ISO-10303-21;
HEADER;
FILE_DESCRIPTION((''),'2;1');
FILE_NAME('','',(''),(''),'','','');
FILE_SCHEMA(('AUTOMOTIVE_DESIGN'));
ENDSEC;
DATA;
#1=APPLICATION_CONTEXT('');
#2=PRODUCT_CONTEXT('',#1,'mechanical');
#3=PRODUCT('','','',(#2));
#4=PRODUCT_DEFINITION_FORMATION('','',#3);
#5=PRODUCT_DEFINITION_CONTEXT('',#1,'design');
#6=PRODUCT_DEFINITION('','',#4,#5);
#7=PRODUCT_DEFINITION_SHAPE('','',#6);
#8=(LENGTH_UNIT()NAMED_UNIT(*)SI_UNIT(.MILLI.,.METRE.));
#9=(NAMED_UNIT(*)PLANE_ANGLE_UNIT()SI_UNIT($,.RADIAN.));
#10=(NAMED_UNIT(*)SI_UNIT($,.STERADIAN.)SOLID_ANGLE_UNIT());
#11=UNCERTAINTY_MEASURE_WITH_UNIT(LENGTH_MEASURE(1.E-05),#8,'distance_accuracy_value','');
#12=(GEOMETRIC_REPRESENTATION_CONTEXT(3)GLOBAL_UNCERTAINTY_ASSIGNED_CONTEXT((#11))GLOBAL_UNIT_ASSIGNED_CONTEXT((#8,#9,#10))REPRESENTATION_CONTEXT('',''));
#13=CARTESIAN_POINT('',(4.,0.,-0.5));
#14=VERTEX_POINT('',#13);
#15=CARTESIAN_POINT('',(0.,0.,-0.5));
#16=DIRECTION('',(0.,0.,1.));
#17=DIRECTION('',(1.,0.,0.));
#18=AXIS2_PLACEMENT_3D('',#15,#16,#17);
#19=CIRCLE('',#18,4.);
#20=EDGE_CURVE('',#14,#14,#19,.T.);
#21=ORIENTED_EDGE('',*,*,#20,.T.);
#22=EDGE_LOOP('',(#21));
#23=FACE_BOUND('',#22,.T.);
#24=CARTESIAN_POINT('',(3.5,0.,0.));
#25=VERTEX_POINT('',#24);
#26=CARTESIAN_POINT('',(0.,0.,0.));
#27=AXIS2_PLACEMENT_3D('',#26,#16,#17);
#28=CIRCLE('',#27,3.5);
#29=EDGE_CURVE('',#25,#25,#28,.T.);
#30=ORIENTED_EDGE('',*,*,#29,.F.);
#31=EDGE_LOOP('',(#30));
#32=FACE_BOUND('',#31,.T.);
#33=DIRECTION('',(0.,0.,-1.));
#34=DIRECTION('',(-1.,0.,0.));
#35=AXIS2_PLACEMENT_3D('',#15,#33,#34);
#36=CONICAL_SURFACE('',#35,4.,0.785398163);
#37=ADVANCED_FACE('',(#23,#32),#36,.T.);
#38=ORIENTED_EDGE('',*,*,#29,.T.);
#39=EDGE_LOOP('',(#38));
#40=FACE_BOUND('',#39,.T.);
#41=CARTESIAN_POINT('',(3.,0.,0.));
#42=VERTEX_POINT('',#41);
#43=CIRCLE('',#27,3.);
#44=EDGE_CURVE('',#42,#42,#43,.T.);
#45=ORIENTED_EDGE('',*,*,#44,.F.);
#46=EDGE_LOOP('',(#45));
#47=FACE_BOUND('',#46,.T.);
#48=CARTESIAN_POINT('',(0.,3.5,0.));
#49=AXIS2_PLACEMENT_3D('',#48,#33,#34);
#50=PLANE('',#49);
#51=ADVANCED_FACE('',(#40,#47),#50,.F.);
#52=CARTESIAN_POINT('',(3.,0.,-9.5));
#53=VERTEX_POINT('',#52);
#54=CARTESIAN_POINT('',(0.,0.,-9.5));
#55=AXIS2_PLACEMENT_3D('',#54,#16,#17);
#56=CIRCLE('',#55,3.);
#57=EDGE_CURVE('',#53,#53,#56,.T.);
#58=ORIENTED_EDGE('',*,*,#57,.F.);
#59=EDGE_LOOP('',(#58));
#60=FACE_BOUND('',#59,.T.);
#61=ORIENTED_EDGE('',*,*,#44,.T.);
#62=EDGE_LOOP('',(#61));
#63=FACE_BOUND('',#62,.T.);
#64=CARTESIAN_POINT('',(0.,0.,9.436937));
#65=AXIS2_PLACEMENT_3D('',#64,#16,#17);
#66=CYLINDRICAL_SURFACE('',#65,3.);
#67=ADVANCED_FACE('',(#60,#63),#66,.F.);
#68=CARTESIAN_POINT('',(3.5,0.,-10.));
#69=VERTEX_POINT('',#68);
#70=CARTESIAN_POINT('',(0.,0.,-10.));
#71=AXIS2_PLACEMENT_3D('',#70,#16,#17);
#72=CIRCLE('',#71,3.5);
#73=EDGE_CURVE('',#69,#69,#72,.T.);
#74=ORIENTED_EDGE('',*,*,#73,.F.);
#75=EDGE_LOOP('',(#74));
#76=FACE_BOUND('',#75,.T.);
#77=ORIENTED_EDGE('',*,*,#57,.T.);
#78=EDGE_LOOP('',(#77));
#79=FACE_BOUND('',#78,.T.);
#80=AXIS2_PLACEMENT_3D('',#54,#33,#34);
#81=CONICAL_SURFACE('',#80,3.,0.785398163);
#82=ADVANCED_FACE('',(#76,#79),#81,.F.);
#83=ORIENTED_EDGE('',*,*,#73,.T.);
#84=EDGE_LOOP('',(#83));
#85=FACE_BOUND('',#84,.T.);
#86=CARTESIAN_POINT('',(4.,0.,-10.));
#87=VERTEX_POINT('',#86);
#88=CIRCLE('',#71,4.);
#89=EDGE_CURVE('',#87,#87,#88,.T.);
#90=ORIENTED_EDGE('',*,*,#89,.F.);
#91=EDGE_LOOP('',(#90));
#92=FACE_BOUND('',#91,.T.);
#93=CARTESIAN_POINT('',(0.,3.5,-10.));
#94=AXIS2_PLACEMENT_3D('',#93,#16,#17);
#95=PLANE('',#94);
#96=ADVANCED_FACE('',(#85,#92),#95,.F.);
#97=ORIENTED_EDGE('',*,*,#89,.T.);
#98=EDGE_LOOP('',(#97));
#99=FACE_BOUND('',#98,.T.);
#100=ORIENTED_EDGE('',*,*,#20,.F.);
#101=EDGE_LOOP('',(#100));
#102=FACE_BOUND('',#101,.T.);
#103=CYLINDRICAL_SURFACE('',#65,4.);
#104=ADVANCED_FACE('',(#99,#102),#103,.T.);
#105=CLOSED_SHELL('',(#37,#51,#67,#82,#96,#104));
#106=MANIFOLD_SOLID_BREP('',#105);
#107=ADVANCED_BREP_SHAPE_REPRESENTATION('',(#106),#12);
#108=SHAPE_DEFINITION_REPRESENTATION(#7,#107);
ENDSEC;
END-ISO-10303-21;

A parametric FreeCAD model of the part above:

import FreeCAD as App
import Part
import Sketcher
Q = App.Units.Quantity


def add_polygon(sketch, points):
    """Adds a closed chain of lines whose ends are joined by coincident constraints."""
    first, n = sketch.GeometryCount, len(points)
    for a, b in zip(points, points[1:] + points[:1]):
        sketch.addGeometry(Part.LineSegment(App.Vector(*a, 0), App.Vector(*b, 0)), False)
    for i in range(n):
        sketch.addConstraint(Sketcher.Constraint("Coincident", first + i, 2, first + (i + 1) % n, 1))

doc = App.newDocument("Part")
body = doc.addObject("PartDesign::Body", "Body")

# Sketch on YZ plane
sketch1 = doc.addObject("Sketcher::SketchObject", "Sketch")
body.addObject(sketch1)
sketch1.AttachmentSupport = (doc.YZ_Plane, [""])
sketch1.MapMode = "FlatFace"
add_polygon(sketch1, [(4, -10), (4, -0.5), (3.5, 0), (3, 0), (3, -9.5), (3.5, -10)])  # lines 0-5
sketch1.addConstraint(Sketcher.Constraint("Vertical", 0))
sketch1.addConstraint(Sketcher.Constraint("Horizontal", 2))
sketch1.addConstraint(Sketcher.Constraint("Vertical", 3))
sketch1.addConstraint(Sketcher.Constraint("Horizontal", 5))
sketch1.addConstraint(Sketcher.Constraint("PointOnObject", 1, 2, -1))
sketch1.addConstraint(Sketcher.Constraint("Parallel", 1, 4))
sketch1.addConstraint(Sketcher.Constraint("Vertical", 1, 2, 4, 2))
sketch1.addConstraint(Sketcher.Constraint("Equal", 2, 5))
sketch1.addConstraint(Sketcher.Constraint("Angle", 1, Q("135 deg")))
sketch1.addConstraint(Sketcher.Constraint("DistanceX", 2, 2, 2, 1, Q("0.5 mm")))
sketch1.addConstraint(Sketcher.Constraint("DistanceY", 0, 1, 0, 2, Q("9.5 mm")))
sketch1.addConstraint(Sketcher.Constraint("DistanceX", -1, 1, 0, 2, Q("4 mm")))
revolution = doc.addObject("PartDesign::Revolution", "Revolution")
body.addObject(revolution)
revolution.Profile = sketch1
revolution.ReferenceAxis = (sketch1, ["V_Axis"])
revolution.Angle = 360

doc.recompute()
